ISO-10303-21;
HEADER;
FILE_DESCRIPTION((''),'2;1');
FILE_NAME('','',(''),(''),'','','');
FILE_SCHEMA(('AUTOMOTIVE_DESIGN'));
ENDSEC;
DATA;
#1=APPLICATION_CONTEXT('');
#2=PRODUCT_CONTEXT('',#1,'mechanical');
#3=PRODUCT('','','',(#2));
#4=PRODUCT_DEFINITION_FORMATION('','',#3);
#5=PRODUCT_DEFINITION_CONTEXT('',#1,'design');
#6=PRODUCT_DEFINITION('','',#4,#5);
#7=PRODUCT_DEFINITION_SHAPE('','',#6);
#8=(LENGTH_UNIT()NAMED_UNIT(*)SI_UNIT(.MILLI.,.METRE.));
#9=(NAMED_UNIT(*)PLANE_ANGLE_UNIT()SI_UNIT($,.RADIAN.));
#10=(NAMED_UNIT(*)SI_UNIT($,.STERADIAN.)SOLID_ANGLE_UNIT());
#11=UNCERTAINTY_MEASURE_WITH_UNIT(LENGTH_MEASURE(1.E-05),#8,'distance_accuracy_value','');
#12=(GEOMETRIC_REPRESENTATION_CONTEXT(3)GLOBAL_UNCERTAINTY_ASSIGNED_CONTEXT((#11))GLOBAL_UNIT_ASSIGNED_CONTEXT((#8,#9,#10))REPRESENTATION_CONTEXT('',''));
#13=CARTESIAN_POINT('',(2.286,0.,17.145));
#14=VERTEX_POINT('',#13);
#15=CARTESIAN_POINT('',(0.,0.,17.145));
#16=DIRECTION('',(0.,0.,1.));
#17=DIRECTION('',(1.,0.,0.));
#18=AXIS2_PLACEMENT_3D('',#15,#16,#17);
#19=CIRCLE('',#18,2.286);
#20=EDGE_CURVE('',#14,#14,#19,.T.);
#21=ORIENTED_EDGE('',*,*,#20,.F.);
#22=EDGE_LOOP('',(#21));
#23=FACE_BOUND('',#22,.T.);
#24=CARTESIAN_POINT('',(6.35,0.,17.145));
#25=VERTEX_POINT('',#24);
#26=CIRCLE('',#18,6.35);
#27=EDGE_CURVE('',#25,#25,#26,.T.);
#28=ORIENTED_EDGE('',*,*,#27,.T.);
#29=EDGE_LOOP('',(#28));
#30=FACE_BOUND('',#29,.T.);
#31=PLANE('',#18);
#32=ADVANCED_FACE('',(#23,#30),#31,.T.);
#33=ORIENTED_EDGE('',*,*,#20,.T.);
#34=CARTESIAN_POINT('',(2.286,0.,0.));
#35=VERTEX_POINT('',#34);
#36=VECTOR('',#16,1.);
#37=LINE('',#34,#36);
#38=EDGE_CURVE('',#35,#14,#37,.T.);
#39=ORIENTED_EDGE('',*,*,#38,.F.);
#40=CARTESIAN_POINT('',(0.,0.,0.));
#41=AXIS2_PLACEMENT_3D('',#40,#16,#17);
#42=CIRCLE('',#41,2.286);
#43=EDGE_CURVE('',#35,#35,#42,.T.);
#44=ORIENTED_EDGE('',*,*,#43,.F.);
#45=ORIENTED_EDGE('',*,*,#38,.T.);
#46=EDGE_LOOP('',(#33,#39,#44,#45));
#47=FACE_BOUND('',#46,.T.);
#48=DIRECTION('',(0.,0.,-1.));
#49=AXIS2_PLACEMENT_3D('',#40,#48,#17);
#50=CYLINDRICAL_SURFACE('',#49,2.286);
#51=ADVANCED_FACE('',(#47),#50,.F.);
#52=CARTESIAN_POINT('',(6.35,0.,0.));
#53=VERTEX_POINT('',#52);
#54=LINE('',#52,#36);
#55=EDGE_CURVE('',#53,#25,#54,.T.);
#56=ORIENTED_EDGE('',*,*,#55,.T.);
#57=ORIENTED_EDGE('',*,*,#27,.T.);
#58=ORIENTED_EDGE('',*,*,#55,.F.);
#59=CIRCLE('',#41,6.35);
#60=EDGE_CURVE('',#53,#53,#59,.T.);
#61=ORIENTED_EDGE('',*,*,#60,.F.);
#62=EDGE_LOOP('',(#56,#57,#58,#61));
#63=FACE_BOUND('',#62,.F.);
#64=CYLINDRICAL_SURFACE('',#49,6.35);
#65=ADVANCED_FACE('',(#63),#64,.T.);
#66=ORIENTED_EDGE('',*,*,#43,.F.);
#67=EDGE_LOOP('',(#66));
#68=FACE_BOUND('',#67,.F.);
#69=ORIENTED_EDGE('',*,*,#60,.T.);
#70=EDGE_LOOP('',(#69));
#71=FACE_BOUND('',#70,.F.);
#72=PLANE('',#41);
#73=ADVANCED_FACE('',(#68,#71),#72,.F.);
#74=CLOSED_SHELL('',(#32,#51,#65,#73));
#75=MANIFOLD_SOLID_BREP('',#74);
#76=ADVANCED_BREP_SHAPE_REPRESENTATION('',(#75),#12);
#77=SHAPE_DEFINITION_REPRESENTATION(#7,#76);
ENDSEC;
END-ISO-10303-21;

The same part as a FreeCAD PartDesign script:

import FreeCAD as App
import Part
import Sketcher
from FreeCAD import Vector
Q = App.Units.Quantity

doc = App.newDocument("Part")
body = doc.addObject("PartDesign::Body", "Body")

# Sketch on XY plane
sketch1 = body.newObject("Sketcher::SketchObject", "Sketch")
sketch1.AttachmentSupport = (doc.getObject("XY_Plane"), [""])
sketch1.MapMode = "FlatFace"
sketch1.addGeometry(Part.Circle(Vector(0, 0, 0), Vector(0, 0, 1), 6.3), False)
sketch1.addGeometry(Part.Circle(Vector(0, 0, 0), Vector(0, 0, 1), 2.3), False)
sketch1.addConstraint(Sketcher.Constraint("Coincident", 0, 3, -1, 1))
sketch1.addConstraint(Sketcher.Constraint("Coincident", 1, 3, -1, 1))
sketch1.addConstraint(Sketcher.Constraint("Diameter", 0, Q("0.5 in")))
sketch1.addConstraint(Sketcher.Constraint("Diameter", 1, Q("0.18 in")))
pad1 = body.newObject("PartDesign::Pad", "Pad")
pad1.Profile = sketch1
pad1.Length = Q("0.675 in")

doc.recompute()
